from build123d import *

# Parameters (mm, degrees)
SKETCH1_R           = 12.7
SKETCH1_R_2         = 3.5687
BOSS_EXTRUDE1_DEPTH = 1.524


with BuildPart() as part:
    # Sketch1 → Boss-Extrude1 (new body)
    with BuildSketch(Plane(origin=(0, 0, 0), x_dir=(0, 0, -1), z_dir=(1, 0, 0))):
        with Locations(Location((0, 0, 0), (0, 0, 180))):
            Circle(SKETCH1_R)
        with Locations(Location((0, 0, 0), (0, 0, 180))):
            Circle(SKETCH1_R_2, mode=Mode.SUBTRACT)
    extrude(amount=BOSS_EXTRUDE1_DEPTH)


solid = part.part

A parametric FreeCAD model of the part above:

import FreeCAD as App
import Part
import Sketcher
from FreeCAD import Vector
Q = App.Units.Quantity

doc = App.newDocument("Part")
params = doc.addObject("Spreadsheet::Sheet", "Params")
for row, (alias, value) in enumerate([
    ("sketch1_diameter", "1 in"),
    ("sketch1_diameter2", "0.281 in"),
    ("pad1_length", "0.06 in"),
], start=1):
    params.set(f"A{row}", alias)
    params.set(f"B{row}", "=" + value)
    params.setAlias(f"B{row}", alias)

body = doc.addObject("PartDesign::Body", "Body")

# Sketch on YZ plane
sketch1 = body.newObject("Sketcher::SketchObject", "Sketch")
sketch1.AttachmentSupport = (doc.getObject("YZ_Plane"), [""])
sketch1.MapMode = "FlatFace"
sketch1.addGeometry([
    Part.Circle(Vector(0, 0, 0), Vector(0, 0, 1), 12.7),
    Part.Circle(Vector(0, 0, 0), Vector(0, 0, 1), 3.6),
], False)
sketch1.addConstraint([
    Sketcher.Constraint("Coincident", 0, 3, -1, 1),
    Sketcher.Constraint("Coincident", 1, 3, -1, 1),
    Sketcher.Constraint("Diameter", 0, Q("1 in")),
    Sketcher.Constraint("Diameter", 1, Q("0.281 in")),
])
sketch1.setExpression("Constraints[2]", "Params.sketch1_diameter")
sketch1.setExpression("Constraints[3]", "Params.sketch1_diameter2")
pad1 = body.newObject("PartDesign::Pad", "Pad")
pad1.Profile = sketch1
pad1.setExpression("Length", "Params.pad1_length")

doc.recompute()
